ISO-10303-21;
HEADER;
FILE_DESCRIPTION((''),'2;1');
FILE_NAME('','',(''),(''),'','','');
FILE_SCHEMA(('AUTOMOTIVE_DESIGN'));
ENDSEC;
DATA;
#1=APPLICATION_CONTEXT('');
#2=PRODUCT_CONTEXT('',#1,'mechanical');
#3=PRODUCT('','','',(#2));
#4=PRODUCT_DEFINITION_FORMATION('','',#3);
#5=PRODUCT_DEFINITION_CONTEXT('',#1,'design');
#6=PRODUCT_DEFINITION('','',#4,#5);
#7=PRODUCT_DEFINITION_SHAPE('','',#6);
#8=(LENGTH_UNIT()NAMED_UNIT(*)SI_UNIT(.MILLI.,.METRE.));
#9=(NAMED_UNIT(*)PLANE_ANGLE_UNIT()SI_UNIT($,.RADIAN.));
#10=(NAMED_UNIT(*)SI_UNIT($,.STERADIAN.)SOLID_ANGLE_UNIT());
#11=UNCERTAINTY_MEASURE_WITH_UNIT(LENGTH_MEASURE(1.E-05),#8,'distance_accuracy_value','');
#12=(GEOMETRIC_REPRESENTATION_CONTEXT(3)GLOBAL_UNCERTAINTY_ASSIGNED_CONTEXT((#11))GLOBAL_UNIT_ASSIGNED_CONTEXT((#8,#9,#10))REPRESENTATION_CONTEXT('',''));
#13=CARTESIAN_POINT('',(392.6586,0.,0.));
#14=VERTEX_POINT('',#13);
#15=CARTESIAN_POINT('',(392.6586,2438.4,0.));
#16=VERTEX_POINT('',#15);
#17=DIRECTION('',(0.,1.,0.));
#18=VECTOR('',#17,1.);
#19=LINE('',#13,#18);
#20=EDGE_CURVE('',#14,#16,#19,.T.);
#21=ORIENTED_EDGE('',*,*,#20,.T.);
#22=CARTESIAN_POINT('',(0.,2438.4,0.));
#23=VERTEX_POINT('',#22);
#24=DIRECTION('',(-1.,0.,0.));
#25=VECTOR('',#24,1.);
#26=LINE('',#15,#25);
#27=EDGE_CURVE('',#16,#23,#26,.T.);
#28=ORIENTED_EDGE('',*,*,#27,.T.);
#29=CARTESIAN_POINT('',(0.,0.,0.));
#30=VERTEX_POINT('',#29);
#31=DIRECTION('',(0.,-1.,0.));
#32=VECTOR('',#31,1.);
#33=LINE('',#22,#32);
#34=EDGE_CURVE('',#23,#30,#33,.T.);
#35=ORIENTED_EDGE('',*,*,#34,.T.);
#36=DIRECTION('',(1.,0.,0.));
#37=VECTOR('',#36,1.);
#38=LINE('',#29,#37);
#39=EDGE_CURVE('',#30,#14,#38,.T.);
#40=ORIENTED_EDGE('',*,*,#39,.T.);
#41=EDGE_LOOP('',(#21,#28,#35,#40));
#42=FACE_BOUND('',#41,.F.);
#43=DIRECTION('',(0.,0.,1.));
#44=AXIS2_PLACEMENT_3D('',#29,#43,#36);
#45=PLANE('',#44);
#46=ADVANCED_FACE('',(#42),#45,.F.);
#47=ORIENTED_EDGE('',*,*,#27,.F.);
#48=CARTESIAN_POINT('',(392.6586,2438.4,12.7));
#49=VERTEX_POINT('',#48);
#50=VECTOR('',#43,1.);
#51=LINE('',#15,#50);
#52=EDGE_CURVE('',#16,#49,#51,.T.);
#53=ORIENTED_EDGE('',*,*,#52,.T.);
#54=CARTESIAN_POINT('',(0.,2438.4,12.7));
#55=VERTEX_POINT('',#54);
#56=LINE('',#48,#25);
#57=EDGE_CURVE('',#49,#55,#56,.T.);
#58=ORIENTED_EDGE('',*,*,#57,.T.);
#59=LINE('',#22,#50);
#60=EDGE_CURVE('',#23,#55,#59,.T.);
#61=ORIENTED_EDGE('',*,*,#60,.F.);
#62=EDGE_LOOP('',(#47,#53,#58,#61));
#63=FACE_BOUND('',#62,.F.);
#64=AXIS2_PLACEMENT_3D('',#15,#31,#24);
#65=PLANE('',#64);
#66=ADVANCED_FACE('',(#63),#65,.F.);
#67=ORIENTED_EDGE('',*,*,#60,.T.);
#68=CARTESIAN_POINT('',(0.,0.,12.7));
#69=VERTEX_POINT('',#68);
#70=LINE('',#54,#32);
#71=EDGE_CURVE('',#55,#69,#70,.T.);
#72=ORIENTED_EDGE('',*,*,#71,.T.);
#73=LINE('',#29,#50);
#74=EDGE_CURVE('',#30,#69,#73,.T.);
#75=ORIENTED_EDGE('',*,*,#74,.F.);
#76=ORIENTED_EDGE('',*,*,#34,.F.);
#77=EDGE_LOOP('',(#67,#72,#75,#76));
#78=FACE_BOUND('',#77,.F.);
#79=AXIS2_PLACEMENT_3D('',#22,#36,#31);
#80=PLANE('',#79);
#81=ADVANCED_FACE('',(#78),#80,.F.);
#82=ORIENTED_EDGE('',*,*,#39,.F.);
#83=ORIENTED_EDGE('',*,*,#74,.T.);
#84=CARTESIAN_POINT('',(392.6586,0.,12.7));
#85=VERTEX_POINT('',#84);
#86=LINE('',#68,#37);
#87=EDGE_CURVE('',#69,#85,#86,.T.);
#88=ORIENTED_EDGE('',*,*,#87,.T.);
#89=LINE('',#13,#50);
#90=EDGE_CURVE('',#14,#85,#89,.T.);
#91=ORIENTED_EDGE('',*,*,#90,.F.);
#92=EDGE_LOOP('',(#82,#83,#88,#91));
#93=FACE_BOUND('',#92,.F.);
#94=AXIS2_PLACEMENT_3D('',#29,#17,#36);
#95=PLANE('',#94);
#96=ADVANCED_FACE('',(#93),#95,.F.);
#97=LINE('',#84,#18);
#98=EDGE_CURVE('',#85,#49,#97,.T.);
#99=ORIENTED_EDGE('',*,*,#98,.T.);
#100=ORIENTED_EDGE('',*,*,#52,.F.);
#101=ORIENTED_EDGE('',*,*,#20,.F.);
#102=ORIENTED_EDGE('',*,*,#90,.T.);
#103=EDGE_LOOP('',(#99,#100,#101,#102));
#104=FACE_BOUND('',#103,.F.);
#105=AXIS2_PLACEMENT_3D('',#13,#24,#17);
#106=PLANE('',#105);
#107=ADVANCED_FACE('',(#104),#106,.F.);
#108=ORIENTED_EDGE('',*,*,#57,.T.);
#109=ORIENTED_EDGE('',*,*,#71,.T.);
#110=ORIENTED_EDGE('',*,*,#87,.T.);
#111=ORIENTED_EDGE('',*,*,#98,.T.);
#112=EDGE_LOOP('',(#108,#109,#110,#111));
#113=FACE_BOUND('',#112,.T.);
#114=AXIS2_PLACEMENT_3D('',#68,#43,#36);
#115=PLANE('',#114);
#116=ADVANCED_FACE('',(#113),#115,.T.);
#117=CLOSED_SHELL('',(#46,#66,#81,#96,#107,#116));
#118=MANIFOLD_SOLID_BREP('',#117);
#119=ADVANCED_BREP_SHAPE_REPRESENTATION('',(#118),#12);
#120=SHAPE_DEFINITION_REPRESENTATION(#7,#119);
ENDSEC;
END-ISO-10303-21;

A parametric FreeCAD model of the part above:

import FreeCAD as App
import Part
import Sketcher
from FreeCAD import Vector
Q = App.Units.Quantity


def add_polygon(sketch, points):
    """Adds a closed chain of lines whose ends are joined by coincident constraints."""
    first, n = sketch.GeometryCount, len(points)
    for a, b in zip(points, points[1:] + points[:1]):
        sketch.addGeometry(Part.LineSegment(App.Vector(*a, 0), App.Vector(*b, 0)), False)
    for i in range(n):
        sketch.addConstraint(Sketcher.Constraint("Coincident", first + i, 2, first + (i + 1) % n, 1))

doc = App.newDocument("Part")
body = doc.addObject("PartDesign::Body", "Body")

sketch1 = body.newObject("Sketcher::SketchObject", "Sketch")
sketch1.AttachmentSupport = (doc.getObject("XY_Plane"), [""])
sketch1.MapMode = "FlatFace"
add_polygon(sketch1, [(0, 2438.4), (0, 0), (392.6586, 0), (392.6586, 2438.4)])
sketch1.addConstraint([
    Sketcher.Constraint("Vertical", 0),
    Sketcher.Constraint("Horizontal", 1),
    Sketcher.Constraint("Vertical", 2),
    Sketcher.Constraint("Horizontal", 3),
    Sketcher.Constraint("Coincident", 0, 2, -1, 1),
    Sketcher.Constraint("DistanceY", 0, 2, 0, 1, Q("96 in")),
    Sketcher.Constraint("DistanceX", 1, 1, 1, 2, Q("15.459 in")),
])
pad1 = body.newObject("PartDesign::Pad", "Pad")
pad1.Profile = sketch1
pad1.Length = Q("0.5 in")

doc.recompute()
